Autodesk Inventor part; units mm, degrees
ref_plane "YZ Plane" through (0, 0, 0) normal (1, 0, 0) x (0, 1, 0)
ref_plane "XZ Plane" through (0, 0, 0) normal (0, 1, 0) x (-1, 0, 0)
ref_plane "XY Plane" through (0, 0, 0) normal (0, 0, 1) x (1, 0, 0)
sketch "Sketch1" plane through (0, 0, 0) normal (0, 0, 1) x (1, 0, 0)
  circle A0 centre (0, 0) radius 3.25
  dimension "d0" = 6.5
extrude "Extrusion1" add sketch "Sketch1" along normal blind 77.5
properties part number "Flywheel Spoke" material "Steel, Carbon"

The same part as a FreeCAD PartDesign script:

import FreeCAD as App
import Part
import Sketcher
from FreeCAD import Vector

doc = App.newDocument("Part")
body = doc.addObject("PartDesign::Body", "Body")

sketch1 = body.newObject("Sketcher::SketchObject", "Sketch")
sketch1.AttachmentSupport = (doc.getObject("XY_Plane"), [""])
sketch1.MapMode = "FlatFace"
sketch1.addGeometry(Part.Circle(Vector(0, 0, 0), Vector(0, 0, 1), 3.2), False)
sketch1.addConstraint([
    Sketcher.Constraint("Coincident", 0, 3, -1, 1),
    Sketcher.Constraint("Diameter", 0, 6.5),
])
pad1 = body.newObject("PartDesign::Pad", "Pad")
pad1.Profile = sketch1
pad1.Length = 77.5

doc.recompute()
